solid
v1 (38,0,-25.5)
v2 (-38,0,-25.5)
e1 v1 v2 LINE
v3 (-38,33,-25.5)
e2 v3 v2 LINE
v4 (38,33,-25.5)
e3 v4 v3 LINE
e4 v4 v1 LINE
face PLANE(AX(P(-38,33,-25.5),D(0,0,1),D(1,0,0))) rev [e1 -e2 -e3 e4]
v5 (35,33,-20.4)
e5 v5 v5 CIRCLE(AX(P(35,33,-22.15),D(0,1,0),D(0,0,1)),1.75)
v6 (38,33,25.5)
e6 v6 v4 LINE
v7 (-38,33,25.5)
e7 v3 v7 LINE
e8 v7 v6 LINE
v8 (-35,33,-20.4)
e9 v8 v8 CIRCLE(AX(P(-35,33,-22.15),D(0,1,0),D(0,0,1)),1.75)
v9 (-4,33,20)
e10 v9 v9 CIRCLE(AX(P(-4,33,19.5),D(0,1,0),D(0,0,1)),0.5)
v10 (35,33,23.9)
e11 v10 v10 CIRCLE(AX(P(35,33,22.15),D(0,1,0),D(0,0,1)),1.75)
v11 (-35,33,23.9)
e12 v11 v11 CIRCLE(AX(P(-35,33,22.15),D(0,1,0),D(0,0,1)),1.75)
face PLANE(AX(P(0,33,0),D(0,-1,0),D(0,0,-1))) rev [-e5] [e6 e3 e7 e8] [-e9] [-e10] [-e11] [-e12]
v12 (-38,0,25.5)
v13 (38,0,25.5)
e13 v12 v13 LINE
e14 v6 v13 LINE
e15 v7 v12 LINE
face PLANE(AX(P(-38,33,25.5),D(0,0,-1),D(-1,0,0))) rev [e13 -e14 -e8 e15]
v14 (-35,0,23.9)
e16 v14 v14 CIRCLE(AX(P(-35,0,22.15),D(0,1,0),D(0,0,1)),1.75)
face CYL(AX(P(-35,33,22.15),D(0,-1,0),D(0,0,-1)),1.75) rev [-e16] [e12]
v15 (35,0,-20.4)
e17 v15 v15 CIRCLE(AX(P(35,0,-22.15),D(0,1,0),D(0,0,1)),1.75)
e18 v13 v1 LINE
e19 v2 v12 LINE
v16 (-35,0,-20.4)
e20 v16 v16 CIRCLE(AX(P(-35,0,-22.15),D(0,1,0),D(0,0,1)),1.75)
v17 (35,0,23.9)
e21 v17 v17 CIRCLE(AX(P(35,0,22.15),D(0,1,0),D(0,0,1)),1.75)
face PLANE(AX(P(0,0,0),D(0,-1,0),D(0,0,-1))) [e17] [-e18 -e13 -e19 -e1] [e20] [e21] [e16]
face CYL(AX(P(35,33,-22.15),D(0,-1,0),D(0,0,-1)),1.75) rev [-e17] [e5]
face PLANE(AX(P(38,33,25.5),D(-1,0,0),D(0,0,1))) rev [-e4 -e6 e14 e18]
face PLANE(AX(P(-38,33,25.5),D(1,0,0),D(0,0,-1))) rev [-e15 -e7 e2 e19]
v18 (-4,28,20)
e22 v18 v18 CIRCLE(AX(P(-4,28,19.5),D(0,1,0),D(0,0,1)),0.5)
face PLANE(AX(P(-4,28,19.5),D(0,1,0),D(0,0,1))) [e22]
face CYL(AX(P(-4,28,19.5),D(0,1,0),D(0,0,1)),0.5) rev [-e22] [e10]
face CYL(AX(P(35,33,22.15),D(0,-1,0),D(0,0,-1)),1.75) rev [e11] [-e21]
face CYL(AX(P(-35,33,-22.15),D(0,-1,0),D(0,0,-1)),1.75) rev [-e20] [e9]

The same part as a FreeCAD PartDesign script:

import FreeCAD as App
import Part
import Sketcher

doc = App.newDocument("Part")
body = doc.addObject("PartDesign::Body", "Body")

# Sketch on XZ plane
sketch1 = doc.addObject("Sketcher::SketchObject", "Sketch")
body.addObject(sketch1)
sketch1.AttachmentSupport = (doc.XZ_Plane, [""])
sketch1.MapMode = "FlatFace"
sketch1.addGeometry([
    Part.LineSegment(App.Vector(-38, -26, 0), App.Vector(-38, 26, 0)),
    Part.LineSegment(App.Vector(-38, 26, 0), App.Vector(38, 26, 0)),
    Part.LineSegment(App.Vector(38, 26, 0), App.Vector(38, -26, 0)),
    Part.LineSegment(App.Vector(38, -26, 0), App.Vector(-38, -26, 0)),
], False)
sketch1.addConstraint([
    Sketcher.Constraint("Coincident", 0, 2, 1, 1),
    Sketcher.Constraint("Coincident", 1, 2, 2, 1),
    Sketcher.Constraint("Coincident", 2, 2, 3, 1),
    Sketcher.Constraint("Coincident", 3, 2, 0, 1),
    Sketcher.Constraint("Vertical", 0),
    Sketcher.Constraint("Horizontal", 1),
    Sketcher.Constraint("Vertical", 2),
    Sketcher.Constraint("Horizontal", 3),
    Sketcher.Constraint("Symmetric", 0, 2, 2, 2, -1, 1),
    Sketcher.Constraint("DistanceX", 1, 1, 1, 2, 76.0),
    Sketcher.Constraint("DistanceY", 0, 1, 0, 2, 51.0),
])
pad1 = doc.addObject("PartDesign::Pad", "Pad")
body.addObject(pad1)
pad1.Profile = sketch1
pad1.Length = 33
pad1.Reversed = True

# Sketch on XZ plane
sketch2 = doc.addObject("Sketcher::SketchObject", "Sketch001")
body.addObject(sketch2)
sketch2.AttachmentSupport = (doc.XZ_Plane, [""])
sketch2.MapMode = "FlatFace"
sketch2.addGeometry([
    Part.Circle(App.Vector(-35, -22.1, 0), App.Vector(0, 0, 1), 1.8),
    Part.Circle(App.Vector(35, -22.1, 0), App.Vector(0, 0, 1), 1.8),
    Part.Circle(App.Vector(35, 22.1, 0), App.Vector(0, 0, 1), 1.8),
    Part.Circle(App.Vector(-35, 22.1, 0), App.Vector(0, 0, 1), 1.8),
], False)
sketch2.addConstraint([
    Sketcher.Constraint("Equal", 0, 1),
    Sketcher.Constraint("Equal", 1, 2),
    Sketcher.Constraint("Equal", 2, 3),
    Sketcher.Constraint("Symmetric", 0, 3, 2, 3, -1, 1),
    Sketcher.Constraint("Symmetric", 1, 3, 3, 3, -1, 1),
    Sketcher.Constraint("Symmetric", 0, 3, 1, 3, -2),
    Sketcher.Constraint("Diameter", 0, 3.5),
    Sketcher.Constraint("DistanceX", 0, 3, -1, 1, 35.0),
    Sketcher.Constraint("DistanceY", 1, 3, 2, 3, 44.3),
])
pocket1 = doc.addObject("PartDesign::Pocket", "Pocket")
body.addObject(pocket1)
pocket1.Profile = sketch2
pocket1.Type = "ThroughAll"

# Sketch on XZ plane
sketch3 = doc.addObject("Sketcher::SketchObject", "Sketch002")
body.addObject(sketch3)
sketch3.AttachmentSupport = (doc.XZ_Plane, [""])
sketch3.MapMode = "FlatFace"
sketch3.AttachmentOffset = App.Placement(App.Vector(0, 0, -33), App.Rotation())
sketch3.addGeometry(Part.Circle(App.Vector(-4, 19.5, 0), App.Vector(0, 0, 1), 0.5), False)
sketch3.addConstraint([
    Sketcher.Constraint("Diameter", 0, 1.0),
    Sketcher.Constraint("DistanceX", 0, 3, -1, 1, 4.0),
    Sketcher.Constraint("DistanceY", -1, 1, 0, 3, 19.5),
])
pocket2 = doc.addObject("PartDesign::Pocket", "Pocket001")
body.addObject(pocket2)
pocket2.Profile = sketch3
pocket2.Length = 5
pocket2.Reversed = True

doc.recompute()
